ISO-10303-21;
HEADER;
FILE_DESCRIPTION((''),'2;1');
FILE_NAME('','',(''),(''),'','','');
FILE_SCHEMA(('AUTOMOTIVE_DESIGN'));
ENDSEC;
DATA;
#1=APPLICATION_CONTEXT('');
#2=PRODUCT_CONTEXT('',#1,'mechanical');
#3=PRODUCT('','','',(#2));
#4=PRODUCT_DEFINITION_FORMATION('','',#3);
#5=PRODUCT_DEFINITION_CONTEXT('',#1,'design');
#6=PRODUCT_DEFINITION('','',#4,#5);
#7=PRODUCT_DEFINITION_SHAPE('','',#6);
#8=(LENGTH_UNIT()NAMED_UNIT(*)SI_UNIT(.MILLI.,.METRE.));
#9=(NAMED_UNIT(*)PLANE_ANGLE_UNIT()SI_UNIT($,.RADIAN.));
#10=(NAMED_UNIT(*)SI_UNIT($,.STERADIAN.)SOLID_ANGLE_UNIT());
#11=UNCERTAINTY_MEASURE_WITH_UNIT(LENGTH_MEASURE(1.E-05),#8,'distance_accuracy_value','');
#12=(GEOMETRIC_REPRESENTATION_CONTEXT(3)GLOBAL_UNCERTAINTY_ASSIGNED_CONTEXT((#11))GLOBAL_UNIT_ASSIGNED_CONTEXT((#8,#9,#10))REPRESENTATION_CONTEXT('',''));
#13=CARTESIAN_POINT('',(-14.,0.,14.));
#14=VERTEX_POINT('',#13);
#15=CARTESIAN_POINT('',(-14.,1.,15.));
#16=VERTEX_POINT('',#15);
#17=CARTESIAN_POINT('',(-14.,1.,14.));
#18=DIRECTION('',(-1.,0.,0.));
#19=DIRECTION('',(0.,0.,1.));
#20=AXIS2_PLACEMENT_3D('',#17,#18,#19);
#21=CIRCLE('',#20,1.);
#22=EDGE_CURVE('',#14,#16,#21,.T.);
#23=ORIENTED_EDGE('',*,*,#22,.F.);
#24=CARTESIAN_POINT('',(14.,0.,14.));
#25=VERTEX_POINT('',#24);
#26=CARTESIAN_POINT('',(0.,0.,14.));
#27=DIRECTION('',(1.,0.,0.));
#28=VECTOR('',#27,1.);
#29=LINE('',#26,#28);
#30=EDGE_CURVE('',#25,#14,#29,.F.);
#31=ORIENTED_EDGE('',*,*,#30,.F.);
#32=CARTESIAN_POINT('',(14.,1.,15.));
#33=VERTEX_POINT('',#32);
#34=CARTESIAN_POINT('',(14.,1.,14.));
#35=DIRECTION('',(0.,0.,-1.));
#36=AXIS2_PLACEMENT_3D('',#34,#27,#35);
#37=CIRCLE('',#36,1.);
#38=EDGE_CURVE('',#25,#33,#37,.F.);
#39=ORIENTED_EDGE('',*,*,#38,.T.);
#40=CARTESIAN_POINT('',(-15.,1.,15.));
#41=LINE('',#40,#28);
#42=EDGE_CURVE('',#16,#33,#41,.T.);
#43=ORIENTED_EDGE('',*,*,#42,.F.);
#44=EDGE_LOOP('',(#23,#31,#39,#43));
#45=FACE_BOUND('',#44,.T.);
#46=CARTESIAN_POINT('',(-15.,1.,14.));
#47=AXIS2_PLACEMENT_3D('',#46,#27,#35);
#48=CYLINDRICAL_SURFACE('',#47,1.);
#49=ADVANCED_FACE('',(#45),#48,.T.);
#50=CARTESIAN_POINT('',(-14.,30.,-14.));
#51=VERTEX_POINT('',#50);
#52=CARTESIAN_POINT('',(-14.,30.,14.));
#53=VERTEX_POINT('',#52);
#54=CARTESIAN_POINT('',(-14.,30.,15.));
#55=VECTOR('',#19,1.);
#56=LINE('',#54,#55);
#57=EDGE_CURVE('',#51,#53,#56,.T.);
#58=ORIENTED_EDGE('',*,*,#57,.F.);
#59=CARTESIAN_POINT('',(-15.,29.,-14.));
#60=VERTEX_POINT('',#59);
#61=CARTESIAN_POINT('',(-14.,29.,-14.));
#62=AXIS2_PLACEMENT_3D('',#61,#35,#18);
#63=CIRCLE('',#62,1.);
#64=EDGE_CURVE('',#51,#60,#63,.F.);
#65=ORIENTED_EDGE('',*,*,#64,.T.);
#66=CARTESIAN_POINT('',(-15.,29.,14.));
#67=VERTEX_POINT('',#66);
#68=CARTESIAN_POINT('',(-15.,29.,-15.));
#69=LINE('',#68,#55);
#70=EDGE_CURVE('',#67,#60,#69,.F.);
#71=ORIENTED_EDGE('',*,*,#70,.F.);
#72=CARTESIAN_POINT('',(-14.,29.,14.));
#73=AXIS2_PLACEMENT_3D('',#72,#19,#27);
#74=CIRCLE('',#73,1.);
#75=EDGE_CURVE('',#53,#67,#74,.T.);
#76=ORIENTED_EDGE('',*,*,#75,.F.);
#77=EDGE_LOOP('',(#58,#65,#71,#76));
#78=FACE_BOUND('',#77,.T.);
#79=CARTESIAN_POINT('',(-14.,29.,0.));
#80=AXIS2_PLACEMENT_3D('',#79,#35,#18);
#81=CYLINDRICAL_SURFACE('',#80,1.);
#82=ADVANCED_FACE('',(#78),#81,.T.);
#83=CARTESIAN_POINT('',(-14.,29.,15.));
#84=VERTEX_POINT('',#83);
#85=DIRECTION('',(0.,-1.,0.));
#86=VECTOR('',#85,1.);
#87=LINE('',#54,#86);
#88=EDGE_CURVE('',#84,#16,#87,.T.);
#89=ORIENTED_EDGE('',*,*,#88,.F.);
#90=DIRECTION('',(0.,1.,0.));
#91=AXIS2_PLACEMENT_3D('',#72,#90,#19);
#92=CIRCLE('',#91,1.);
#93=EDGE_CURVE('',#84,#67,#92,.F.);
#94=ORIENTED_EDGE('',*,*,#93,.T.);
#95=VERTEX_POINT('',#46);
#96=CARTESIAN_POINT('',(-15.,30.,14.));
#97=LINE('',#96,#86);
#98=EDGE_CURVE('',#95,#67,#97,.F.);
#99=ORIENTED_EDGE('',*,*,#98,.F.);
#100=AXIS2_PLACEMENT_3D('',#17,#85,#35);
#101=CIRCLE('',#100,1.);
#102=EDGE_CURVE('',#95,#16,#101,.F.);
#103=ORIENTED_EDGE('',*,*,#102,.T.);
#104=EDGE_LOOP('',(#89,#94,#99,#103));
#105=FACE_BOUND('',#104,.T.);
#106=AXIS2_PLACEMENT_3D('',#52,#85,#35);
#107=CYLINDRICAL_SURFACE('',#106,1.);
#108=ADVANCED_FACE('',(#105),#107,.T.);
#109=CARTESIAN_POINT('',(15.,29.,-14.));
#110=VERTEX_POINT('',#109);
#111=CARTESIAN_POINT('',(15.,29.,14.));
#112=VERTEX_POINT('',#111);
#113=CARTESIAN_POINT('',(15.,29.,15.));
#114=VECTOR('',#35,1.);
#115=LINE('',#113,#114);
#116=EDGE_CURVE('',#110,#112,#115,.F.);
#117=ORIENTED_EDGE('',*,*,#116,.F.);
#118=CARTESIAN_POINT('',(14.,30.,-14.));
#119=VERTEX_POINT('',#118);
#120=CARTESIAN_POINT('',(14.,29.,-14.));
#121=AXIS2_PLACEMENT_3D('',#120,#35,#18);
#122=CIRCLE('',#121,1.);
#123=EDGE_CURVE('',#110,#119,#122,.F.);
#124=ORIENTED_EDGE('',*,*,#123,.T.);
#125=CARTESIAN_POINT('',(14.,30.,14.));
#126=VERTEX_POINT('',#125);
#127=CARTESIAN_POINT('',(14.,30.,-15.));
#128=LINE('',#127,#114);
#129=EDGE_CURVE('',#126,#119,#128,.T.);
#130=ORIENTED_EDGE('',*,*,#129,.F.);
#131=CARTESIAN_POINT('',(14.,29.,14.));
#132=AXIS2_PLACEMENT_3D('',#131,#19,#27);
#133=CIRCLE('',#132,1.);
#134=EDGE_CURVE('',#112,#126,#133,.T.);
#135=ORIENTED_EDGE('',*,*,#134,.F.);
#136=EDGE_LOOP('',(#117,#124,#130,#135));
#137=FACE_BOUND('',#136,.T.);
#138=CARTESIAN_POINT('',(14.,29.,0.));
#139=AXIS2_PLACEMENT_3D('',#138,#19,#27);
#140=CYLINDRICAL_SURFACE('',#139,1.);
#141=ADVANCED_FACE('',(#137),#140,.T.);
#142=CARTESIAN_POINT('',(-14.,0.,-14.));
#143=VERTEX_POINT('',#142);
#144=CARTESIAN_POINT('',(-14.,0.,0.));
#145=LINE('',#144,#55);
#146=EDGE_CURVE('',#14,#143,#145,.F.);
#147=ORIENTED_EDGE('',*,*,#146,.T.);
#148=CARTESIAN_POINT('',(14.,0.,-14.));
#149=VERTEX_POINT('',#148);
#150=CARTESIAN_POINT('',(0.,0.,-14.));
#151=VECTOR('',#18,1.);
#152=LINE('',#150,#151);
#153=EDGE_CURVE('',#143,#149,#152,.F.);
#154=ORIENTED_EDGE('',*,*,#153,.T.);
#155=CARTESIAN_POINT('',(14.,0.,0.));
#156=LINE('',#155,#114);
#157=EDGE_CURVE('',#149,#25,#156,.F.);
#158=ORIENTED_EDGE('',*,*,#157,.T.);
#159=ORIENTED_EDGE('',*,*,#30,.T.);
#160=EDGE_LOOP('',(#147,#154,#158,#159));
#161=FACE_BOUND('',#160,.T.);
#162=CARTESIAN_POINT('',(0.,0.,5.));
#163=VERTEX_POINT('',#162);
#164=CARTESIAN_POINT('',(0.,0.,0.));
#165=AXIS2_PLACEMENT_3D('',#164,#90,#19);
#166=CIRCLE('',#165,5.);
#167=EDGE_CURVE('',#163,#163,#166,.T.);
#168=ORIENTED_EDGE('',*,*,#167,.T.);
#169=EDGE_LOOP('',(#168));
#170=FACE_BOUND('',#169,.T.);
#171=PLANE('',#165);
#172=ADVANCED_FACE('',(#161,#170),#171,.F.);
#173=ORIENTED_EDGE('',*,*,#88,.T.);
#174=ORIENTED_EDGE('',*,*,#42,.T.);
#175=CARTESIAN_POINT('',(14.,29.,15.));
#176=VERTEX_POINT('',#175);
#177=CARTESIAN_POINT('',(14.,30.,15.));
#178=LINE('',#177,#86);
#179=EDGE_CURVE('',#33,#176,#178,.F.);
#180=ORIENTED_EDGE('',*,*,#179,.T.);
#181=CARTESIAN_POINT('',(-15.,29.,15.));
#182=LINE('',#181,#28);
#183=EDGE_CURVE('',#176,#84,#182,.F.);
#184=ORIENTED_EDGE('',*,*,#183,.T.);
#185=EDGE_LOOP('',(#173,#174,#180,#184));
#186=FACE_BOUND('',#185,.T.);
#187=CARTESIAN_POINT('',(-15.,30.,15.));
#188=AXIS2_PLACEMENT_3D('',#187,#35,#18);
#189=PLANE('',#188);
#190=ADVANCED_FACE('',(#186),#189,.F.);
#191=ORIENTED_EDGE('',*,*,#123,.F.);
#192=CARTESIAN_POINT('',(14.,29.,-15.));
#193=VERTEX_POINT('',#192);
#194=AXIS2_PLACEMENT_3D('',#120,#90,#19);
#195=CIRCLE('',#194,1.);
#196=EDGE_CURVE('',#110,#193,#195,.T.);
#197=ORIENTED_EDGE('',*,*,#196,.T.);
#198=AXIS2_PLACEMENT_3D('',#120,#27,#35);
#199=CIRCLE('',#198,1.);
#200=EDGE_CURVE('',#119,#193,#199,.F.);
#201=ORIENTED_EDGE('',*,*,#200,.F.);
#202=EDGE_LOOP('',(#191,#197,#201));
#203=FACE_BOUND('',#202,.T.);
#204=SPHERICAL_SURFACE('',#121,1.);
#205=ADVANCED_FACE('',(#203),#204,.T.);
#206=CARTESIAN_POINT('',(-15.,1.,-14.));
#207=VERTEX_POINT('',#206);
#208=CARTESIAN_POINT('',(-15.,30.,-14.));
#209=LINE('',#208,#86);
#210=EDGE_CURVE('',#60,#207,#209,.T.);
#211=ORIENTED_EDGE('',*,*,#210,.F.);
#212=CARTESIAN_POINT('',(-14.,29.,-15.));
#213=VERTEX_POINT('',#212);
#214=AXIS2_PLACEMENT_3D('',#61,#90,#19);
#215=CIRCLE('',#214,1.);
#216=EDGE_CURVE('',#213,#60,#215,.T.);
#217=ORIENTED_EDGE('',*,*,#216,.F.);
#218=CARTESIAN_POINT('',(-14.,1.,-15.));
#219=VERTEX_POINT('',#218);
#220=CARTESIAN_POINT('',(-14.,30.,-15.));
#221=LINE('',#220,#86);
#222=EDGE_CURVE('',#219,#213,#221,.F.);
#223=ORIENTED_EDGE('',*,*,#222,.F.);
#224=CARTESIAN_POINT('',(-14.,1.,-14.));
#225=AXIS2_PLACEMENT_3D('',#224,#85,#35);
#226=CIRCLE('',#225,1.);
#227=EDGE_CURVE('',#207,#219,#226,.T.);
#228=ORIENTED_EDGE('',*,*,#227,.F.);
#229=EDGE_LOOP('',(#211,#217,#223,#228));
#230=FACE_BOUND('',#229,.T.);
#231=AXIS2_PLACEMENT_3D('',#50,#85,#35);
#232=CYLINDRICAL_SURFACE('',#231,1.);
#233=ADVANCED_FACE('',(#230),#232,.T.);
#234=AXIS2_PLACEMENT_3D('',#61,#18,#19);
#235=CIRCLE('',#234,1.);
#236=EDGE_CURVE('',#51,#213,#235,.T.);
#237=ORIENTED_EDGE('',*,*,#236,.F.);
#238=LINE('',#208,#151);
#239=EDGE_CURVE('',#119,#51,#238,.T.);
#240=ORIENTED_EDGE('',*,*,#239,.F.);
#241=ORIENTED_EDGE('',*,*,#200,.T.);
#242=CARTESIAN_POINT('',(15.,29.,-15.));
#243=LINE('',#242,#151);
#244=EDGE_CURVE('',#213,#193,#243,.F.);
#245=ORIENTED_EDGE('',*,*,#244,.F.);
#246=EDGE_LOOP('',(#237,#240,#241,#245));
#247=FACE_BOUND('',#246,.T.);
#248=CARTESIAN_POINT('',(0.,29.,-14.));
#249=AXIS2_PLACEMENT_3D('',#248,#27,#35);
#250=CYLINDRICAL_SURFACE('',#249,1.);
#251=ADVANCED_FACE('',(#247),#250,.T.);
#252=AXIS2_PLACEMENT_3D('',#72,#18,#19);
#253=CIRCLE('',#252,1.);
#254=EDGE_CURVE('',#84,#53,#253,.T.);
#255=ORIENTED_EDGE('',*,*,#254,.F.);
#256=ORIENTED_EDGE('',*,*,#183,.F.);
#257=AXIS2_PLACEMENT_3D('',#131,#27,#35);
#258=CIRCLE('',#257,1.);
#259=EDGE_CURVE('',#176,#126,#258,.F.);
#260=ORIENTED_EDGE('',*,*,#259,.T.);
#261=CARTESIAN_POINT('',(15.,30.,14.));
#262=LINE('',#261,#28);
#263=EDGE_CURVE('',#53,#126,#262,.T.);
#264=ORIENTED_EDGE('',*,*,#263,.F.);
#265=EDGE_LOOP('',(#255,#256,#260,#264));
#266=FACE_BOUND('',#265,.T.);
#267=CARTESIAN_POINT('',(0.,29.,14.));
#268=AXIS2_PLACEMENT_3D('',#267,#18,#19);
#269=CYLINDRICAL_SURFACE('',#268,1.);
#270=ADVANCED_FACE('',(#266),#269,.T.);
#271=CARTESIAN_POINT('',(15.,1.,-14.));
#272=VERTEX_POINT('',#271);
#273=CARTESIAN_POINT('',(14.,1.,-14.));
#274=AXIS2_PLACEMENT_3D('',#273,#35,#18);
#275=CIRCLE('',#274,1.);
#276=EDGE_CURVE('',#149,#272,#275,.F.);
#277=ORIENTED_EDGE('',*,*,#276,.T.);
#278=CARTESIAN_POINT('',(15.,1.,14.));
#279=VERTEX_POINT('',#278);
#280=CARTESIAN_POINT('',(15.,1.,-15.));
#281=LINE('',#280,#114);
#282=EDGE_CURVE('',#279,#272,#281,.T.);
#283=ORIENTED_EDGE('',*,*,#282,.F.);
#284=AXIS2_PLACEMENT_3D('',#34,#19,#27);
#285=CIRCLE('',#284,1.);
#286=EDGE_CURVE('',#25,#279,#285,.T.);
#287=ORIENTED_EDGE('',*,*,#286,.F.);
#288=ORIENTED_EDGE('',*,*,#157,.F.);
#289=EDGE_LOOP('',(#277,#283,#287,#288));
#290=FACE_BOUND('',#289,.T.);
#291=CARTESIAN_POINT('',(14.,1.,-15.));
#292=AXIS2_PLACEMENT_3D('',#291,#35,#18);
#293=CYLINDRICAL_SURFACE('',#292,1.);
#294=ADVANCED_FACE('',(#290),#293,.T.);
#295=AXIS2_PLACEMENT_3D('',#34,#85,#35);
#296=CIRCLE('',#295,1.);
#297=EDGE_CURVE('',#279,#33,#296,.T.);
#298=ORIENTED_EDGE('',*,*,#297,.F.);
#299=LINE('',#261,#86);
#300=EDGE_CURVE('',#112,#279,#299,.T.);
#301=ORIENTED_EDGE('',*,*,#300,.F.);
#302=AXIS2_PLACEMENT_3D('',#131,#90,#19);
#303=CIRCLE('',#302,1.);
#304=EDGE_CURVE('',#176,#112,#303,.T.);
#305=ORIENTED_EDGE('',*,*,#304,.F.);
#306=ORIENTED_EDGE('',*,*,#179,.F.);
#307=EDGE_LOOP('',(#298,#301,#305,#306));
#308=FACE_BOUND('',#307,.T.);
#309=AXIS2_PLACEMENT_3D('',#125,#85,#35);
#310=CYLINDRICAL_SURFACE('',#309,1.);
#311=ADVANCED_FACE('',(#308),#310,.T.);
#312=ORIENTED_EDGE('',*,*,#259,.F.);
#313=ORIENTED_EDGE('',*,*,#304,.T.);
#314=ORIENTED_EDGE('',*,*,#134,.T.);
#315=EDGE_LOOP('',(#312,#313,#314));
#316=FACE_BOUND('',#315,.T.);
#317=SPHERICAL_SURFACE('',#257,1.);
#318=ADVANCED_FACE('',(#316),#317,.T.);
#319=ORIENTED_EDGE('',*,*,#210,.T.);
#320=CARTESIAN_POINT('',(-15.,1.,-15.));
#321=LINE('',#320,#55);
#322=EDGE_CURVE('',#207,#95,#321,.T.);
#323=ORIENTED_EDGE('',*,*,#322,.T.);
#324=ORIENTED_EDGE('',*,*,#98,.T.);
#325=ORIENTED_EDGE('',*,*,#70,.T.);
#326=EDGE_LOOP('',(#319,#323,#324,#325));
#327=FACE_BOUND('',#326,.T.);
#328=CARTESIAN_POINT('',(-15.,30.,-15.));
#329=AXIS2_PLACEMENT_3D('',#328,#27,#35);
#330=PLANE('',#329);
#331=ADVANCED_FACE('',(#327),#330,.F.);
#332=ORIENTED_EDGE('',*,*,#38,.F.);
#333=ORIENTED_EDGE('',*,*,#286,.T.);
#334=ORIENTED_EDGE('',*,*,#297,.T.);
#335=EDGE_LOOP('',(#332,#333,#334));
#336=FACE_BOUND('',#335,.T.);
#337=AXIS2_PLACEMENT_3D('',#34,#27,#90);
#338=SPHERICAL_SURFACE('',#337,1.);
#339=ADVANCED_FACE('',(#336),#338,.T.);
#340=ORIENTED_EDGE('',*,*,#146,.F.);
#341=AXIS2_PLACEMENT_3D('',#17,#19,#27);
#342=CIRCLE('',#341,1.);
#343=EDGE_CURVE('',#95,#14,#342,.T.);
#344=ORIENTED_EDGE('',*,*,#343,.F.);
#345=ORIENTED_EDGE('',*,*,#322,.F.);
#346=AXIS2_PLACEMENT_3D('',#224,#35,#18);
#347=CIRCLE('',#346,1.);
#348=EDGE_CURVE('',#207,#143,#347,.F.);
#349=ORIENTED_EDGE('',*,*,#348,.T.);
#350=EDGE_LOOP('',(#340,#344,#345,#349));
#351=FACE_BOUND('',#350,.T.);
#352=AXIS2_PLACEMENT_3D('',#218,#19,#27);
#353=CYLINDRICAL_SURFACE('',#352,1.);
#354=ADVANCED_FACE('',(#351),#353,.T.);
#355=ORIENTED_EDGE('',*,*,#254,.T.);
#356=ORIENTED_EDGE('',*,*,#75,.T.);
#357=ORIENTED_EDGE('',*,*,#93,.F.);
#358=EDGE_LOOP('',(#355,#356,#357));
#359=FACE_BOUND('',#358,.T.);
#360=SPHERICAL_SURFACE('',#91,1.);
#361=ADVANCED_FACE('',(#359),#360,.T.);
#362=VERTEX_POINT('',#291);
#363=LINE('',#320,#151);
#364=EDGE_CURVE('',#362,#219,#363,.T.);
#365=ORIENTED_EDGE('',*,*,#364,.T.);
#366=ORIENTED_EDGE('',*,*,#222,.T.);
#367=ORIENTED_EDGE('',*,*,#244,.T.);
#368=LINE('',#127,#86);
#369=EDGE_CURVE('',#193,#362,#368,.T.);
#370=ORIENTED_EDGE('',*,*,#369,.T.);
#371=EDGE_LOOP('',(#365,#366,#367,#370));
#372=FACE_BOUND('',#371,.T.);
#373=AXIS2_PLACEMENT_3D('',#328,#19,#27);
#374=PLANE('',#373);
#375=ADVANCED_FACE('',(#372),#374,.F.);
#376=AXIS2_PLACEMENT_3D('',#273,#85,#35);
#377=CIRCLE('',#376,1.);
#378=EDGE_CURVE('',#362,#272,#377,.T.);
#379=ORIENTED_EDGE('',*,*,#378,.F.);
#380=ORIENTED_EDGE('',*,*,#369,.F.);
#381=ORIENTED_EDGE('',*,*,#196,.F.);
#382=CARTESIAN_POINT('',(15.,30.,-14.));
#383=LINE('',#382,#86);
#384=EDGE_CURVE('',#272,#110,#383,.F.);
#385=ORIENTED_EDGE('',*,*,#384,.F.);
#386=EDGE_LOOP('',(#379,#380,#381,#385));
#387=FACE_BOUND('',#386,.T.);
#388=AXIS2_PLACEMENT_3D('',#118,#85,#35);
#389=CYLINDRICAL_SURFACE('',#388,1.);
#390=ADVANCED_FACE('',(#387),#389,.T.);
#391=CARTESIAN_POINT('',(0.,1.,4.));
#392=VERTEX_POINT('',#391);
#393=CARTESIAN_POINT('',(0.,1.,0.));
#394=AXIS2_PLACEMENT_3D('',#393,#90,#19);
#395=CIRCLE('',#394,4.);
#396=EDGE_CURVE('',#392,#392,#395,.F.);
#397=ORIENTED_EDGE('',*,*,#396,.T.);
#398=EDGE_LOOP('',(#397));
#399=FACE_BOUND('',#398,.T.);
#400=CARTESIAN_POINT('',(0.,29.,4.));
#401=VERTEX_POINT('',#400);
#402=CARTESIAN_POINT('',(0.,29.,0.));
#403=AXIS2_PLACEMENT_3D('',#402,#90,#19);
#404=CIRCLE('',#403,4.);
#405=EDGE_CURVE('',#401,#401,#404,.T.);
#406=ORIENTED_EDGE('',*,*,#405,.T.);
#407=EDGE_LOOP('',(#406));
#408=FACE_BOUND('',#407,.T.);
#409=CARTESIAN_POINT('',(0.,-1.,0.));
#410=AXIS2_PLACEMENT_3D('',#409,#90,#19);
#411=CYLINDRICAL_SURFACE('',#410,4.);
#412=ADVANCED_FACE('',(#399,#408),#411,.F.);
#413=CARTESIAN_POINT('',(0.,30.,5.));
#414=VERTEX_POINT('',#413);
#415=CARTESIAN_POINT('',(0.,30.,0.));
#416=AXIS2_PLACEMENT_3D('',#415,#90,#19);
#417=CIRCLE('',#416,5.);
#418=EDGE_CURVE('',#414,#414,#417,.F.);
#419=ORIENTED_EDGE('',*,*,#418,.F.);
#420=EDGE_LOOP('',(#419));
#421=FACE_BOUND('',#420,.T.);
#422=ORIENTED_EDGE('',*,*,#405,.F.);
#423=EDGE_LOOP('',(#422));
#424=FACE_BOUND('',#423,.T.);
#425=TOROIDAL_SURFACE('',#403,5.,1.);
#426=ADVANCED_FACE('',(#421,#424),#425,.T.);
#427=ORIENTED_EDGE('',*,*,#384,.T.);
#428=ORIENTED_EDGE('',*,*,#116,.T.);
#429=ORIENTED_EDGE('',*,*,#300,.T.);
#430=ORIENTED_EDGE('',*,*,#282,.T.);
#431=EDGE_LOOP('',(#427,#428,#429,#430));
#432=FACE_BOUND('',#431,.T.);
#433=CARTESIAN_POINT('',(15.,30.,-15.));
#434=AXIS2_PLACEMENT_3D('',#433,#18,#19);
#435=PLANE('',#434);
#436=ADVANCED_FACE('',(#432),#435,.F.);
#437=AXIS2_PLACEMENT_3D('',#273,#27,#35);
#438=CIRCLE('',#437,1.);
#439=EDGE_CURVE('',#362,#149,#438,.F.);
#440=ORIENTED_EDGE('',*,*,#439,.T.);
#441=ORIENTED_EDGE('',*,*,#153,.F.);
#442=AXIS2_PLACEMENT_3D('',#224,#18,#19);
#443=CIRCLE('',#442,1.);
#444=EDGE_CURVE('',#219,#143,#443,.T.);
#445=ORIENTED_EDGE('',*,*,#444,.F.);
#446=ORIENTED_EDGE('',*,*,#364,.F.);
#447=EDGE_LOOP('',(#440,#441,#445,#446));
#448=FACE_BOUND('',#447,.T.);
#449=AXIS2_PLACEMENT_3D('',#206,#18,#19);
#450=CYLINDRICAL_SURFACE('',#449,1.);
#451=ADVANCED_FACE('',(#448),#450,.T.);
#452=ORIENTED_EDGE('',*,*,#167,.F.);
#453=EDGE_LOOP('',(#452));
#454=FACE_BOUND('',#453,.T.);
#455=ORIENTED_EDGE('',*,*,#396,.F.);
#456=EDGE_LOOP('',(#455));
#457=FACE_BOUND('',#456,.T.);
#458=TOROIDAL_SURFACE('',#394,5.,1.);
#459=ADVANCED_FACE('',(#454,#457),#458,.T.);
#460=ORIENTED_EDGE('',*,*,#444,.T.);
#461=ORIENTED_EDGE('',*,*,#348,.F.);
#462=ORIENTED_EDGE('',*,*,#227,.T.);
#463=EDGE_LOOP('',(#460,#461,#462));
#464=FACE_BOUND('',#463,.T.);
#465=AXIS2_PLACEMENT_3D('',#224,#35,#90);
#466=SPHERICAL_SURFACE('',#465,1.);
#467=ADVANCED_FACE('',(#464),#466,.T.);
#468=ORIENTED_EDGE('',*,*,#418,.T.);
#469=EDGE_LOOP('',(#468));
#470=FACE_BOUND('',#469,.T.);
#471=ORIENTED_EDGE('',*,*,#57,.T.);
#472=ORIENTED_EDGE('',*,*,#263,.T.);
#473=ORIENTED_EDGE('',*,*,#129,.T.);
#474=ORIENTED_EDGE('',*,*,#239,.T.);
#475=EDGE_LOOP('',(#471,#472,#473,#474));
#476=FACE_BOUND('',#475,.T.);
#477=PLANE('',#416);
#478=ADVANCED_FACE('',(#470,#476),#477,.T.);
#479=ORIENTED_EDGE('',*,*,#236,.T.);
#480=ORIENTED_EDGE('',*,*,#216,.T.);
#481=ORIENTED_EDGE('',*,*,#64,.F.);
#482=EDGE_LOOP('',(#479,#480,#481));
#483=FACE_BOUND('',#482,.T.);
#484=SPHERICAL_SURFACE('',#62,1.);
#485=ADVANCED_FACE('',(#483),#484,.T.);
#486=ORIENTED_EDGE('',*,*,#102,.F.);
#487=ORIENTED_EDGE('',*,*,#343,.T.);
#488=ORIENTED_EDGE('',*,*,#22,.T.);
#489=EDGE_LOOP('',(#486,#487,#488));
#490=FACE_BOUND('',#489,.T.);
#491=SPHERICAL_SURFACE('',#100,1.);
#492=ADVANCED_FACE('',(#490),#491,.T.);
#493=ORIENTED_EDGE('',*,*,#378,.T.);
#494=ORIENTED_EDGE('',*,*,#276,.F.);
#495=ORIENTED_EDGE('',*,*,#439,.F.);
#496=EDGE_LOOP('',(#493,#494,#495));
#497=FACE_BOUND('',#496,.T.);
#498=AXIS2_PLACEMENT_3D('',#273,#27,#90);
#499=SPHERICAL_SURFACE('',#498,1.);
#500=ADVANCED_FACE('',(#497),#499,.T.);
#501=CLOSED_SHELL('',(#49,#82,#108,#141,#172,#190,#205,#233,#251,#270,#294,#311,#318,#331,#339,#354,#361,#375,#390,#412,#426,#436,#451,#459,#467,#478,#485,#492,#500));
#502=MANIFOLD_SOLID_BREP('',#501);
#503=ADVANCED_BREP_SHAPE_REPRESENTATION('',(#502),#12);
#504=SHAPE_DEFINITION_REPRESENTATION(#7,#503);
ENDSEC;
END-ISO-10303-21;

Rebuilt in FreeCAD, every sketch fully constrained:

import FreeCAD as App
import Part
import Sketcher
from FreeCAD import Vector
Q = App.Units.Quantity


def add_polygon(sketch, points):
    """Adds a closed chain of lines whose ends are joined by coincident constraints."""
    first, n = sketch.GeometryCount, len(points)
    for a, b in zip(points, points[1:] + points[:1]):
        sketch.addGeometry(Part.LineSegment(App.Vector(*a, 0), App.Vector(*b, 0)), False)
    for i in range(n):
        sketch.addConstraint(Sketcher.Constraint("Coincident", first + i, 2, first + (i + 1) % n, 1))

doc = App.newDocument("Part")
body = doc.addObject("PartDesign::Body", "Body")

# Sketch on XZ plane
sketch1 = body.newObject("Sketcher::SketchObject", "Sketch")
sketch1.AttachmentSupport = (doc.getObject("XZ_Plane"), [""])
sketch1.MapMode = "FlatFace"
add_polygon(sketch1, [(-15, -15), (-15, 15), (15, 15), (15, -15)])  # lines 0-3
sketch1.addConstraint(Sketcher.Constraint("Vertical", 0))
sketch1.addConstraint(Sketcher.Constraint("Horizontal", 1))
sketch1.addConstraint(Sketcher.Constraint("Vertical", 2))
sketch1.addConstraint(Sketcher.Constraint("Horizontal", 3))
sketch1.addConstraint(Sketcher.Constraint("Symmetric", 0, 2, 2, 2, -1, 1))
sketch1.addConstraint(Sketcher.Constraint("Equal", 3, 0))
sketch1.addConstraint(Sketcher.Constraint("DistanceX", 1, 1, 1, 2, Q("30 mm")))
pad1 = body.newObject("PartDesign::Pad", "Pad")
pad1.Profile = sketch1
pad1.Length = 30
pad1.Reversed = True

# Sketch on XZ plane
sketch2 = body.newObject("Sketcher::SketchObject", "Sketch001")
sketch2.AttachmentSupport = (doc.getObject("XZ_Plane"), [""])
sketch2.MapMode = "FlatFace"
sketch2.AttachmentOffset = App.Placement(Vector(0, 0, -30), App.Rotation())
sketch2.addGeometry(Part.Circle(Vector(0, 0, 0), Vector(0, 0, 1), 4), False)
sketch2.addConstraint(Sketcher.Constraint("Coincident", 0, 3, -1, 1))
sketch2.addConstraint(Sketcher.Constraint("Diameter", 0, Q("8 mm")))
pocket1 = body.newObject("PartDesign::Pocket", "Pocket")
pocket1.Profile = sketch2
pocket1.Length = 31
pocket1.Reversed = True
doc.recompute()

fillet = body.newObject("PartDesign::Fillet", "Fillet")
fillet.Base = (pocket1, ["Edge1"])
fillet.UseAllEdges = True
fillet.Radius = 1

doc.recompute()
